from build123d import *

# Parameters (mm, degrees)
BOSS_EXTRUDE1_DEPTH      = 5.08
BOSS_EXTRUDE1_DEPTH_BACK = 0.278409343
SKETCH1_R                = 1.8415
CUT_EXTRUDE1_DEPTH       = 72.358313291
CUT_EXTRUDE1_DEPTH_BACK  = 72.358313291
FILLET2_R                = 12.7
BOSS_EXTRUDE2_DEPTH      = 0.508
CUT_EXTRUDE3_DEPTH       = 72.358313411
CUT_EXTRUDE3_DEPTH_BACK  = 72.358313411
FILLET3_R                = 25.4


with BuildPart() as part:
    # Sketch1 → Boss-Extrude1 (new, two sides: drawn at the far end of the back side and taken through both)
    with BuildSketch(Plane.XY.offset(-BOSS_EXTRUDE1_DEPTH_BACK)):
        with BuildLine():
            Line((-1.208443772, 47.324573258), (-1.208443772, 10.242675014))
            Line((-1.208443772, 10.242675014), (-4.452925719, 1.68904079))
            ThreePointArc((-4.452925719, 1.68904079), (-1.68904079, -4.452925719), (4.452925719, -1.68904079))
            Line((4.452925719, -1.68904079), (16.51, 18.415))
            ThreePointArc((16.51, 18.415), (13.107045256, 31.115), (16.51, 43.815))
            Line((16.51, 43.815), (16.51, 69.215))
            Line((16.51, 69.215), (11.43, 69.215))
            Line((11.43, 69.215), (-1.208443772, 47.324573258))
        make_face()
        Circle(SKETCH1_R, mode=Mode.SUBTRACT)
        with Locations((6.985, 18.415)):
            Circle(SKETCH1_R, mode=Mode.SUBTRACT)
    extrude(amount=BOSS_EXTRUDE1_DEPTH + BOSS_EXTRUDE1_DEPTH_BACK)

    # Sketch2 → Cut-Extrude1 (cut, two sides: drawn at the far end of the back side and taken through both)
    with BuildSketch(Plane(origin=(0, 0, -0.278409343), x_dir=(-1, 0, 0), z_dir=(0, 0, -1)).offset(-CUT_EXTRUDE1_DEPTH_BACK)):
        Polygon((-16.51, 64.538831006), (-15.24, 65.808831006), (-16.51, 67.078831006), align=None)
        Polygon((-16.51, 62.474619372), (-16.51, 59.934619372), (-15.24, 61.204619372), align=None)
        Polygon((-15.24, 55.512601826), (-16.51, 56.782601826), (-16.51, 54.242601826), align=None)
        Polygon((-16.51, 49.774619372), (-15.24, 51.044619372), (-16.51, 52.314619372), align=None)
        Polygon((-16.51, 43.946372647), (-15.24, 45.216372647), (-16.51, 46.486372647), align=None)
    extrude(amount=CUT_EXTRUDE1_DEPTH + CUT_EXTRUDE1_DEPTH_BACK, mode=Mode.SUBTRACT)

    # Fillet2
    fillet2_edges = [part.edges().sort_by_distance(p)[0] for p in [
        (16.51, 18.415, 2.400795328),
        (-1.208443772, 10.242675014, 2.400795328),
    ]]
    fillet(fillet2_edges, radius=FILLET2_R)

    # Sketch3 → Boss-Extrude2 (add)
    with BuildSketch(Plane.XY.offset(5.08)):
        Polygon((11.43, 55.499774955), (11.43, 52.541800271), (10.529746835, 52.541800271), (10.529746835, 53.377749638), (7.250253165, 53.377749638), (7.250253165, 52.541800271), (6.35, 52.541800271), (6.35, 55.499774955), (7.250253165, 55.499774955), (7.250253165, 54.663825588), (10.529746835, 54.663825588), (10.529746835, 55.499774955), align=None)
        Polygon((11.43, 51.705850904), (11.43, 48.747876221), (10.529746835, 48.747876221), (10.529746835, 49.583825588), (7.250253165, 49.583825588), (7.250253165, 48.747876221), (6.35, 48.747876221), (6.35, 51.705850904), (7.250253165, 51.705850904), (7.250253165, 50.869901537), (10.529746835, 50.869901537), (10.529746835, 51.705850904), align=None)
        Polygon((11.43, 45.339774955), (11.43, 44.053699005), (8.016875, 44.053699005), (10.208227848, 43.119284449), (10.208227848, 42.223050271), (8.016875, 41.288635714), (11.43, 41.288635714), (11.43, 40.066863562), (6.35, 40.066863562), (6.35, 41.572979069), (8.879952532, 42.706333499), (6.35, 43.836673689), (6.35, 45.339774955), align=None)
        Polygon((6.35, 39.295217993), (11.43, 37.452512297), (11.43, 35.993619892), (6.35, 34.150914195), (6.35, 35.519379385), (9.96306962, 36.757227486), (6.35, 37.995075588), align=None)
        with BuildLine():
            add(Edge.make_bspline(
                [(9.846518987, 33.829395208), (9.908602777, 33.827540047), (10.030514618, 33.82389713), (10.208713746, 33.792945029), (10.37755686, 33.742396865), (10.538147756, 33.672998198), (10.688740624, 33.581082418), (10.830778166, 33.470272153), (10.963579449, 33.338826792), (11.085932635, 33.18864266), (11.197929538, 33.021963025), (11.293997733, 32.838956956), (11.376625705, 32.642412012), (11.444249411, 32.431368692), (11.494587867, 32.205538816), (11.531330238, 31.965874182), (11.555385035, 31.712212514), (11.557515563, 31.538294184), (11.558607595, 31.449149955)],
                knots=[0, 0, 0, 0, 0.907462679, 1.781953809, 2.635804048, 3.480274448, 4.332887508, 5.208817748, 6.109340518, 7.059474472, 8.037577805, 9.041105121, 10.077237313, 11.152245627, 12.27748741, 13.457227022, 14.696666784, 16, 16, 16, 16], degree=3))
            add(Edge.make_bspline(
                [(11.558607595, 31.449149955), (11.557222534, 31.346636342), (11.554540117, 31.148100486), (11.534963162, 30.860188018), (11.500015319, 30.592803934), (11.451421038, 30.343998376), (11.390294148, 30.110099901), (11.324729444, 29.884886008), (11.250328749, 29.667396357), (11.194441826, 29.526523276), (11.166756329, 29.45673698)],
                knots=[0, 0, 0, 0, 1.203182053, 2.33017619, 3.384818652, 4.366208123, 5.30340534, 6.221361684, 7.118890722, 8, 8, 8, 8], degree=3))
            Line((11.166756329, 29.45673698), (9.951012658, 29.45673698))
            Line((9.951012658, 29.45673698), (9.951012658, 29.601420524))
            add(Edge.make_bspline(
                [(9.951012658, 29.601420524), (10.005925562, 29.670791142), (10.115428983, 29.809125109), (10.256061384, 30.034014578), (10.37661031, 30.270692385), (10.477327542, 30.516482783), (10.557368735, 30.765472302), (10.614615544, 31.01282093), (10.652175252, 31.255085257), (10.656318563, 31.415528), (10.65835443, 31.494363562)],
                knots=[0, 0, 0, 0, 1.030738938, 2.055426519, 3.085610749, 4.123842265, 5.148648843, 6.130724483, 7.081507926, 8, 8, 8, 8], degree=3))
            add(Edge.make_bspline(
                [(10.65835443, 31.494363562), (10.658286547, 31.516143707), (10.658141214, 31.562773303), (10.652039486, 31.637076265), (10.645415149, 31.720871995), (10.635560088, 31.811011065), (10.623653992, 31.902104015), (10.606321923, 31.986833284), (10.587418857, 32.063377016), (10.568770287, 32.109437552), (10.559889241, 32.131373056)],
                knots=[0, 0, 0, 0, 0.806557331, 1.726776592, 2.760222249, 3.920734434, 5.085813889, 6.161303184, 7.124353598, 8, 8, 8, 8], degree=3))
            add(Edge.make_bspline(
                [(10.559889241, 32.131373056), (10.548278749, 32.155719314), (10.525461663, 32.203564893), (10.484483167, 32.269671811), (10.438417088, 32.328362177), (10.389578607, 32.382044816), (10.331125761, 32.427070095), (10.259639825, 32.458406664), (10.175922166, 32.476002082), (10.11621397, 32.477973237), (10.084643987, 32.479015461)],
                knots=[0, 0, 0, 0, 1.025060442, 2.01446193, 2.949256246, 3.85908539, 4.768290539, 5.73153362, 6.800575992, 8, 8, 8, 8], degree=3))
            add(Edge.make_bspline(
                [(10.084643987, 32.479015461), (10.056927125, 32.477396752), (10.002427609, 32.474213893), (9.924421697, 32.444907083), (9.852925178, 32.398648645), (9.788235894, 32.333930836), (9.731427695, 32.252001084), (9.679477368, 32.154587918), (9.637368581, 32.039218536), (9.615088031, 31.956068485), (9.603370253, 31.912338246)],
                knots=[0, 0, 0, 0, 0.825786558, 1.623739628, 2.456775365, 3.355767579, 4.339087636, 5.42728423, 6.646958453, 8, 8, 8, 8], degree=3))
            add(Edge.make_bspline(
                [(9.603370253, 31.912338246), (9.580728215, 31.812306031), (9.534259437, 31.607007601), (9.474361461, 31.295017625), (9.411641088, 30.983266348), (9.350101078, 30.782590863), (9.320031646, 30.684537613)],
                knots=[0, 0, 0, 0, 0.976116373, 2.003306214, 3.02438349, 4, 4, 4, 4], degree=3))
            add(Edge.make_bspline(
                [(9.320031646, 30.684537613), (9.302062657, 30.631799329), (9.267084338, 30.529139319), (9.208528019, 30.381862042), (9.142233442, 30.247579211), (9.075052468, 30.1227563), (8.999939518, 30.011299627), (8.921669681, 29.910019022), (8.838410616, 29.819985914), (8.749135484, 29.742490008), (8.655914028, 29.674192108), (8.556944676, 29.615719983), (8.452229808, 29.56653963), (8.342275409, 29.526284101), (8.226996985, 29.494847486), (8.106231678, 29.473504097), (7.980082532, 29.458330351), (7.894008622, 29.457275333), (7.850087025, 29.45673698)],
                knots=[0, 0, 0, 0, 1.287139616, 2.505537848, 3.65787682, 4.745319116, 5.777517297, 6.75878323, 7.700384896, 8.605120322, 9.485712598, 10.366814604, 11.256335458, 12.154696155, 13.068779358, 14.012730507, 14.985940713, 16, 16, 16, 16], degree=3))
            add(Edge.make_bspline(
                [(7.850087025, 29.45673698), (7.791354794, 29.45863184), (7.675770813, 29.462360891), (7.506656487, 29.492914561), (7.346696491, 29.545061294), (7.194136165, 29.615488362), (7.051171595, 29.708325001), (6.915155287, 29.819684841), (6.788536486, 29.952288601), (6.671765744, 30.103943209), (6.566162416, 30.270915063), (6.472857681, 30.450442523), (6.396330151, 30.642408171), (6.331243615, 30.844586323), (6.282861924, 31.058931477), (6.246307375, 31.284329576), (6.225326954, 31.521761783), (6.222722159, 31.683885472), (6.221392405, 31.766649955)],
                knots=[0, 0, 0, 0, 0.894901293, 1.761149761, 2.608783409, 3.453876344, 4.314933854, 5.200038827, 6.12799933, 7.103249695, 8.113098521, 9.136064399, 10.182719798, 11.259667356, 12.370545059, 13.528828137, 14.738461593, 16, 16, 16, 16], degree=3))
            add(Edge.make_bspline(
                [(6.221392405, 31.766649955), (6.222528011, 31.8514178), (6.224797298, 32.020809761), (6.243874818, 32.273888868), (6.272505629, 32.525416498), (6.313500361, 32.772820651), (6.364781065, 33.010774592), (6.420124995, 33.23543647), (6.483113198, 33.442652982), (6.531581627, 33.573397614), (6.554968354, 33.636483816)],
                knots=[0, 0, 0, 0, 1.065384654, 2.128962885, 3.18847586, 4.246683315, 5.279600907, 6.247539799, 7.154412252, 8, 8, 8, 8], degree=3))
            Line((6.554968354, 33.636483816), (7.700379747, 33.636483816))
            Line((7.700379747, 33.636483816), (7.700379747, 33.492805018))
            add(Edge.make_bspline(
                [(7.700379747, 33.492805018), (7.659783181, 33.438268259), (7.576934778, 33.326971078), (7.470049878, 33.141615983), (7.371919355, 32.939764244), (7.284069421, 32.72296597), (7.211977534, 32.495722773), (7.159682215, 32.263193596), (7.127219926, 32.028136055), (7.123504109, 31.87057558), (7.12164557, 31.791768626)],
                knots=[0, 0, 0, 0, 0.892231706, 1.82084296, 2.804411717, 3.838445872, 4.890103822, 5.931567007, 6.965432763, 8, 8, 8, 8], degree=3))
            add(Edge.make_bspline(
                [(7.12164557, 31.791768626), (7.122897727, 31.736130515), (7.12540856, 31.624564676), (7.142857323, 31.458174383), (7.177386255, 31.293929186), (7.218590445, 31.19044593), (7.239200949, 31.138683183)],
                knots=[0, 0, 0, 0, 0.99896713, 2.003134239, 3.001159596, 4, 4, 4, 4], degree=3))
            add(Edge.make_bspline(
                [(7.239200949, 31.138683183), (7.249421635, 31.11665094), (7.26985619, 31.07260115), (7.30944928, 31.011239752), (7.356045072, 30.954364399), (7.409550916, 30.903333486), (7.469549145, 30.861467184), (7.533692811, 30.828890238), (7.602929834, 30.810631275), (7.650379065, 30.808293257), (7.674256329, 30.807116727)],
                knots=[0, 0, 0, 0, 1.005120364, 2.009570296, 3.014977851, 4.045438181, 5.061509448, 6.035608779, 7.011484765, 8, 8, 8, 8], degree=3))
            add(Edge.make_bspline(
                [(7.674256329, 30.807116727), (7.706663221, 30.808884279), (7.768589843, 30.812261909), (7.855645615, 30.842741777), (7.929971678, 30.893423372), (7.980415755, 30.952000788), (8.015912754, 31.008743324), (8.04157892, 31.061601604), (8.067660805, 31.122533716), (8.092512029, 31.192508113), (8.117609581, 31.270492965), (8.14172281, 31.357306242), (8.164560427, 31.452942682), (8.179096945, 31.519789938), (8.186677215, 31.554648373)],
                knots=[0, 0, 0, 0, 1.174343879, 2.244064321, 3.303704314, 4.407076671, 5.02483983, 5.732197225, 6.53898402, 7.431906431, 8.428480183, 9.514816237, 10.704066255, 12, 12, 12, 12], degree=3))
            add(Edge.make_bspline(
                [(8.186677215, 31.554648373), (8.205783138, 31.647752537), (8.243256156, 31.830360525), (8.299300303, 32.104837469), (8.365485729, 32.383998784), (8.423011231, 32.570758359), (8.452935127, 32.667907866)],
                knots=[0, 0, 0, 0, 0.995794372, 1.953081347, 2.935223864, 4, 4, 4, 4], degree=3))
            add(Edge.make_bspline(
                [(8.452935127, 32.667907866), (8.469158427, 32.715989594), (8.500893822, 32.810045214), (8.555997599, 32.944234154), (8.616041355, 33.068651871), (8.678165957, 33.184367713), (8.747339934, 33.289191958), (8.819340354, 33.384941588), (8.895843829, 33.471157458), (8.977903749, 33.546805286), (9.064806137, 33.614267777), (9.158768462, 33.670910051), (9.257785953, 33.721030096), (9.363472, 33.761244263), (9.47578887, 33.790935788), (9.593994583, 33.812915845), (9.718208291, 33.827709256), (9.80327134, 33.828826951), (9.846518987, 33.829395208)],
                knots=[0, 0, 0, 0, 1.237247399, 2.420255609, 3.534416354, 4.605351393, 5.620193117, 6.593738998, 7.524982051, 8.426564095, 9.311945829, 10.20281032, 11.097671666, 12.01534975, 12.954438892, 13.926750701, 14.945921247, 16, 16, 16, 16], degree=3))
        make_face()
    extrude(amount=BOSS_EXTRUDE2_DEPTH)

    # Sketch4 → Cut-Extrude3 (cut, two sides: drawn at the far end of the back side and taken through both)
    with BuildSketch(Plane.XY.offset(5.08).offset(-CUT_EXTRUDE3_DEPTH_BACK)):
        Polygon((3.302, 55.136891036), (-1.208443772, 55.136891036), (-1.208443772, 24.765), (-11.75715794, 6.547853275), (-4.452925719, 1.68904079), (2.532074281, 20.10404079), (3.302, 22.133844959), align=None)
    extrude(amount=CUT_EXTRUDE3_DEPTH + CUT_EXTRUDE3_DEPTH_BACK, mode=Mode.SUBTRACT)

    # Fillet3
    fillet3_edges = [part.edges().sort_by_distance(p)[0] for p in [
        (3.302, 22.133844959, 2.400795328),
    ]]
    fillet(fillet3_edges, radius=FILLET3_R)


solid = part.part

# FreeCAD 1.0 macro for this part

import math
import FreeCAD as App
import Part
import Sketcher
from FreeCAD import Vector
Q = App.Units.Quantity


def edges_at(feature, points):
    """Names of the edges that pass closest to the given points."""
    edges = feature.Shape.Edges
    near = lambda p: min(range(len(edges)), key=lambda i: edges[i].distToShape(Part.Vertex(*p))[0])
    return sorted({f"Edge{near(p) + 1}" for p in points})


def add_polygon(sketch, points):
    """Adds a closed chain of lines whose ends are joined by coincident constraints."""
    first, n = sketch.GeometryCount, len(points)
    for a, b in zip(points, points[1:] + points[:1]):
        sketch.addGeometry(Part.LineSegment(App.Vector(*a, 0), App.Vector(*b, 0)), False)
    for i in range(n):
        sketch.addConstraint(Sketcher.Constraint("Coincident", first + i, 2, first + (i + 1) % n, 1))

doc = App.newDocument("Part")
params = doc.addObject("Spreadsheet::Sheet", "Params")
for row, (alias, value) in enumerate([
    ("sketch1_radius", "1 in"),
    ("sketch1_height", "1 in"),
    ("sketch1_diameter", "0.145 in"),
    ("sketch1_width", "0.2 in"),
    ("sketch1_radius2", "0.1875 in"),
    ("pad1_length", "0.2 in"),
    ("pad1_length2", "0.278409 mm"),
    ("sketch2_height", "0.1 in"),
    ("fillet_radius", "0.5 in"),
    ("sketch3_width", "0.2 in"),
    ("pad2_length", "0.02 in"),
    ("fillet2_radius", "1 in"),
], start=1):
    params.set(f"A{row}", alias)
    params.set(f"B{row}", "=" + value)
    params.setAlias(f"B{row}", alias)

body = doc.addObject("PartDesign::Body", "Body")

sketch1 = body.newObject("Sketcher::SketchObject", "Sketch")
sketch1.AttachmentSupport = (doc.getObject("XY_Plane"), [""])
sketch1.MapMode = "FlatFace"
sketch1.addGeometry(Part.LineSegment(Vector(-1.2, 47.3, 0), Vector(-1.2, 10.2, 0)), False)
sketch1.addGeometry(Part.LineSegment(Vector(-1.2, 10.2, 0), Vector(-4.5, 1.7, 0)), False)
sketch1.addGeometry(Part.ArcOfCircle(Part.Circle(Vector(0, 0, 0), Vector(0, 0, 1), 4.8), math.radians(159), math.radians(339)), False)
sketch1.addGeometry(Part.LineSegment(Vector(4.5, -1.7, 0), Vector(16.5, 18.4, 0)), False)
sketch1.addGeometry(Part.ArcOfCircle(Part.Circle(Vector(38.5, 31.1, 0), Vector(0, 0, 1), 25.4), math.radians(150), math.radians(210)), False)
sketch1.addGeometry(Part.LineSegment(Vector(16.5, 43.8, 0), Vector(16.5, 69.2, 0)), False)
sketch1.addGeometry(Part.LineSegment(Vector(16.5, 69.2, 0), Vector(11.4, 69.2, 0)), False)
sketch1.addGeometry(Part.LineSegment(Vector(11.4, 69.2, 0), Vector(-1.2, 47.3, 0)), False)
sketch1.addGeometry(Part.Circle(Vector(0, 0, 0), Vector(0, 0, 1), 1.8), False)
sketch1.addGeometry(Part.Circle(Vector(7, 18.4, 0), Vector(0, 0, 1), 1.8), False)
sketch1.addConstraint(Sketcher.Constraint("Coincident", 0, 2, 1, 1))
sketch1.addConstraint(Sketcher.Constraint("Tangent", 1, 2, 2, 1))
sketch1.addConstraint(Sketcher.Constraint("Coincident", 2, 2, 3, 1))
sketch1.addConstraint(Sketcher.Constraint("Coincident", 3, 2, 4, 2))
sketch1.addConstraint(Sketcher.Constraint("Coincident", 4, 1, 5, 1))
sketch1.addConstraint(Sketcher.Constraint("Coincident", 5, 2, 6, 1))
sketch1.addConstraint(Sketcher.Constraint("Coincident", 6, 2, 7, 1))
sketch1.addConstraint(Sketcher.Constraint("Coincident", 7, 2, 0, 1))
sketch1.addConstraint(Sketcher.Constraint("Vertical", 0))
sketch1.addConstraint(Sketcher.Constraint("Vertical", 5))
sketch1.addConstraint(Sketcher.Constraint("Horizontal", 6))
sketch1.addConstraint(Sketcher.Constraint("Coincident", 2, 3, -1, 1))
sketch1.addConstraint(Sketcher.Constraint("Coincident", 8, 3, -1, 1))
sketch1.addConstraint(Sketcher.Constraint("Equal", 8, 9))
sketch1.addConstraint(Sketcher.Constraint("Horizontal", 9, 3, 3, 2))
sketch1.addConstraint(Sketcher.Constraint("Vertical", 3, 2, 4, 1))
sketch1.addConstraint(Sketcher.Constraint("Radius", 4, Q("1 in")))
sketch1.addConstraint(Sketcher.Constraint("DistanceY", 5, 1, 5, 2, Q("1 in")))
sketch1.addConstraint(Sketcher.Constraint("Diameter", 8, Q("0.145 in")))
sketch1.addConstraint(Sketcher.Constraint("DistanceX", 6, 2, 6, 1, Q("0.2 in")))
sketch1.addConstraint(Sketcher.Constraint("Angle", 7, Q("-120 deg")))
sketch1.addConstraint(Sketcher.Constraint("Radius", 2, Q("0.1875 in")))
sketch1.addConstraint(Sketcher.Constraint("DistanceY", 3, 2, 4, 1, Q("1 in")))
sketch1.addConstraint(Sketcher.Constraint("DistanceX", -1, 1, 3, 2, Q("0.65 in")))
sketch1.addConstraint(Sketcher.Constraint("DistanceY", -1, 1, 4, 3, Q("1.225 in")))
sketch1.addConstraint(Sketcher.Constraint("DistanceX", -1, 1, 9, 3, Q("0.275 in")))
sketch1.addConstraint(Sketcher.Constraint("DistanceY", 0, 2, 0, 1, Q("37.081898 mm")))
sketch1.addConstraint(Sketcher.Constraint("DistanceY", -1, 1, 1, 2, Q("1.689041 mm")))
sketch1.addConstraint(Sketcher.Constraint("DistanceY", 2, 2, -1, 1, Q("1.689041 mm")))
sketch1.setExpression("Constraints[16]", "Params.sketch1_radius")
sketch1.setExpression("Constraints[17]", "Params.sketch1_height")
sketch1.setExpression("Constraints[18]", "Params.sketch1_diameter")
sketch1.setExpression("Constraints[19]", "Params.sketch1_width")
sketch1.setExpression("Constraints[21]", "Params.sketch1_radius2")
pad1 = body.newObject("PartDesign::Pad", "Pad")
pad1.Profile = sketch1
pad1.Type = "TwoLengths"
pad1.setExpression("Length", "Params.pad1_length")
pad1.setExpression("Length2", "Params.pad1_length2")

sketch2 = body.newObject("Sketcher::SketchObject", "Sketch001")
sketch2.AttachmentSupport = (doc.getObject("XY_Plane"), [""])
sketch2.MapMode = "FlatFace"
sketch2.AttachmentOffset = App.Placement(Vector(0, 0, -0.278409), App.Rotation())
add_polygon(sketch2, [(16.5, 64.5), (15.2, 65.8), (16.5, 67.1)])
add_polygon(sketch2, [(16.5, 62.5), (16.5, 59.9), (15.2, 61.2)])
add_polygon(sketch2, [(15.2, 55.5), (16.5, 56.8), (16.5, 54.2)])
add_polygon(sketch2, [(16.5, 49.8), (15.2, 51), (16.5, 52.3)])
add_polygon(sketch2, [(16.5, 43.9), (15.2, 45.2), (16.5, 46.5)])
sketch2.addConstraint(Sketcher.Constraint("Vertical", 2))
sketch2.addConstraint(Sketcher.Constraint("Vertical", 3))
sketch2.addConstraint(Sketcher.Constraint("Vertical", 7))
sketch2.addConstraint(Sketcher.Constraint("Vertical", 11))
sketch2.addConstraint(Sketcher.Constraint("Vertical", 14))
sketch2.addConstraint(Sketcher.Constraint("Perpendicular", 0, 1))
sketch2.addConstraint(Sketcher.Constraint("Perpendicular", 1, 4))
sketch2.addConstraint(Sketcher.Constraint("Perpendicular", 4, 5))
sketch2.addConstraint(Sketcher.Constraint("Parallel", 5, 6))
sketch2.addConstraint(Sketcher.Constraint("Perpendicular", 6, 8))
sketch2.addConstraint(Sketcher.Constraint("Parallel", 8, 9))
sketch2.addConstraint(Sketcher.Constraint("Perpendicular", 9, 10))
sketch2.addConstraint(Sketcher.Constraint("Perpendicular", 10, 12))
sketch2.addConstraint(Sketcher.Constraint("Perpendicular", 12, 13))
sketch2.addConstraint(Sketcher.Constraint("Vertical", 2, 2, 3, 2))
sketch2.addConstraint(Sketcher.Constraint("Vertical", 0, 2, 4, 2))
sketch2.addConstraint(Sketcher.Constraint("Vertical", 5, 2, 6, 2))
sketch2.addConstraint(Sketcher.Constraint("Vertical", 4, 2, 8, 2))
sketch2.addConstraint(Sketcher.Constraint("Vertical", 8, 2, 9, 2))
sketch2.addConstraint(Sketcher.Constraint("Vertical", 7, 2, 10, 2))
sketch2.addConstraint(Sketcher.Constraint("Vertical", 9, 2, 12, 2))
sketch2.addConstraint(Sketcher.Constraint("Vertical", 11, 2, 13, 2))
sketch2.addConstraint(Sketcher.Constraint("Equal", 0, 1))
sketch2.addConstraint(Sketcher.Constraint("DistanceY", 2, 2, 2, 1, Q("0.1 in")))
sketch2.addConstraint(Sketcher.Constraint("DistanceX", -1, 1, 0, 2, Q("0.6 in")))
sketch2.addConstraint(Sketcher.Constraint("DistanceY", 9, 2, 4, 2, Q("0.4 in")))
sketch2.addConstraint(Sketcher.Constraint("DistanceY", -1, 1, 6, 2, Q("56.782602 mm")))
sketch2.addConstraint(Sketcher.Constraint("DistanceY", -1, 1, 0, 2, Q("65.808831 mm")))
sketch2.addConstraint(Sketcher.Constraint("DistanceY", -1, 1, 3, 2, Q("59.934619 mm")))
sketch2.addConstraint(Sketcher.Constraint("DistanceY", 12, 2, 7, 2, Q("9.026229 mm")))
sketch2.setExpression("Constraints[38]", "Params.sketch2_height")
pocket1 = body.newObject("PartDesign::Pocket", "Pocket")
pocket1.Profile = sketch2
pocket1.Type = "ThroughAll"
pocket1.Midplane = True
doc.recompute()

fillet = body.newObject("PartDesign::Fillet", "Fillet")
fillet.Base = (pocket1, edges_at(pocket1, [(16.51, 18.415, 2.401), (-1.208, 10.243, 2.401)]))
fillet.setExpression("Radius", "Params.fillet_radius")

sketch3 = body.newObject("Sketcher::SketchObject", "Sketch002")
sketch3.AttachmentSupport = (doc.getObject("XY_Plane"), [""])
sketch3.MapMode = "FlatFace"
sketch3.AttachmentOffset = App.Placement(Vector(0, 0, 0.2 * 25.4), App.Rotation())
add_polygon(sketch3, [(11.43, 52.5418), (11.43, 55.499775), (10.529747, 55.499775), (10.529747, 54.663826), (7.250253, 54.663826), (7.250253, 55.499775), (6.35, 55.499775), (6.35, 52.5418), (7.250253, 52.5418), (7.250253, 53.37775), (10.529747, 53.37775), (10.529747, 52.5418)])
add_polygon(sketch3, [(11.43, 48.747876), (11.43, 51.705851), (10.529747, 51.705851), (10.529747, 50.869902), (7.250253, 50.869902), (7.250253, 51.705851), (6.35, 51.705851), (6.35, 48.747876), (7.250253, 48.747876), (7.250253, 49.583826), (10.529747, 49.583826), (10.529747, 48.747876)])
add_polygon(sketch3, [(11.43, 44.053699), (11.43, 45.339775), (6.35, 45.339775), (6.35, 43.836674), (8.879953, 42.706333), (6.35, 41.572979), (6.35, 40.066864), (11.43, 40.066864), (11.43, 41.288636), (8.016875, 41.288636), (10.208228, 42.22305), (10.208228, 43.119284), (8.016875, 44.053699)])
add_polygon(sketch3, [(11.43, 37.452512), (6.35, 39.295218), (6.35, 37.995076), (9.96307, 36.757227), (6.35, 35.519379), (6.35, 34.150914), (11.43, 35.99362)])
sketch3.addGeometry(Part.BSplineCurve([Vector(9.846519, 33.829395, 0), Vector(9.908603, 33.82754, 0), Vector(10.030515, 33.823897, 0), Vector(10.208714, 33.792945, 0), Vector(10.377557, 33.742397, 0), Vector(10.538148, 33.672998, 0), Vector(10.688741, 33.581082, 0), Vector(10.830778, 33.470272, 0), Vector(10.963579, 33.338827, 0), Vector(11.085933, 33.188643, 0), Vector(11.19793, 33.021963, 0), Vector(11.293998, 32.838957, 0), Vector(11.376626, 32.642412, 0), Vector(11.444249, 32.431369, 0), Vector(11.494588, 32.205539, 0), Vector(11.53133, 31.965874, 0), Vector(11.555385, 31.712213, 0), Vector(11.557516, 31.538294, 0), Vector(11.558608, 31.44915, 0)], [4, 1, 1, 1, 1, 1, 1, 1, 1, 1, 1, 1, 1, 1, 1, 1, 4], [0, 0.907462679, 1.781953809, 2.635804048, 3.480274448, 4.332887508, 5.208817748, 6.109340518, 7.059474472, 8.037577805, 9.041105121, 10.077237313, 11.152245627, 12.27748741, 13.457227022, 14.696666784, 16], False, 3, [1, 1, 1, 1, 1, 1, 1, 1, 1, 1, 1, 1, 1, 1, 1, 1, 1, 1, 1], False), False)
sketch3.addGeometry(Part.BSplineCurve([Vector(8.452935, 32.667908, 0), Vector(8.469158, 32.71599, 0), Vector(8.500894, 32.810045, 0), Vector(8.555998, 32.944234, 0), Vector(8.616041, 33.068652, 0), Vector(8.678166, 33.184368, 0), Vector(8.74734, 33.289192, 0), Vector(8.81934, 33.384942, 0), Vector(8.895844, 33.471157, 0), Vector(8.977904, 33.546805, 0), Vector(9.064806, 33.614268, 0), Vector(9.158768, 33.67091, 0), Vector(9.257786, 33.72103, 0), Vector(9.363472, 33.761244, 0), Vector(9.475789, 33.790936, 0), Vector(9.593995, 33.812916, 0), Vector(9.718208, 33.827709, 0), Vector(9.803271, 33.828827, 0), Vector(9.846519, 33.829395, 0)], [4, 1, 1, 1, 1, 1, 1, 1, 1, 1, 1, 1, 1, 1, 1, 1, 4], [0, 1.237247399, 2.420255609, 3.534416354, 4.605351393, 5.620193117, 6.593738998, 7.524982051, 8.426564095, 9.311945829, 10.20281032, 11.097671666, 12.01534975, 12.954438892, 13.926750701, 14.945921247, 16], False, 3, [1, 1, 1, 1, 1, 1, 1, 1, 1, 1, 1, 1, 1, 1, 1, 1, 1, 1, 1], False), False)
sketch3.addGeometry(Part.BSplineCurve([Vector(8.186677, 31.554648, 0), Vector(8.205783, 31.647753, 0), Vector(8.243256, 31.830361, 0), Vector(8.2993, 32.104837, 0), Vector(8.365486, 32.383999, 0), Vector(8.423011, 32.570758, 0), Vector(8.452935, 32.667908, 0)], [4, 1, 1, 1, 4], [0, 0.995794372, 1.953081347, 2.935223864, 4], False, 3, [1, 1, 1, 1, 1, 1, 1], False), False)
sketch3.addGeometry(Part.BSplineCurve([Vector(7.674256, 30.807117, 0), Vector(7.706663, 30.808884, 0), Vector(7.76859, 30.812262, 0), Vector(7.855646, 30.842742, 0), Vector(7.929972, 30.893423, 0), Vector(7.980416, 30.952001, 0), Vector(8.015913, 31.008743, 0), Vector(8.041579, 31.061602, 0), Vector(8.067661, 31.122534, 0), Vector(8.092512, 31.192508, 0), Vector(8.11761, 31.270493, 0), Vector(8.141723, 31.357306, 0), Vector(8.16456, 31.452943, 0), Vector(8.179097, 31.51979, 0), Vector(8.186677, 31.554648, 0)], [4, 1, 1, 1, 1, 1, 1, 1, 1, 1, 1, 1, 4], [0, 1.174343879, 2.244064321, 3.303704314, 4.407076671, 5.02483983, 5.732197225, 6.53898402, 7.431906431, 8.428480183, 9.514816237, 10.704066255, 12], False, 3, [1, 1, 1, 1, 1, 1, 1, 1, 1, 1, 1, 1, 1, 1, 1], False), False)
sketch3.addGeometry(Part.BSplineCurve([Vector(7.239201, 31.138683, 0), Vector(7.249422, 31.116651, 0), Vector(7.269856, 31.072601, 0), Vector(7.309449, 31.01124, 0), Vector(7.356045, 30.954364, 0), Vector(7.409551, 30.903333, 0), Vector(7.469549, 30.861467, 0), Vector(7.533693, 30.82889, 0), Vector(7.60293, 30.810631, 0), Vector(7.650379, 30.808293, 0), Vector(7.674256, 30.807117, 0)], [4, 1, 1, 1, 1, 1, 1, 1, 4], [0, 1.005120364, 2.009570296, 3.014977851, 4.045438181, 5.061509448, 6.035608779, 7.011484765, 8], False, 3, [1, 1, 1, 1, 1, 1, 1, 1, 1, 1, 1], False), False)
sketch3.addGeometry(Part.BSplineCurve([Vector(7.121646, 31.791769, 0), Vector(7.122898, 31.736131, 0), Vector(7.125409, 31.624565, 0), Vector(7.142857, 31.458174, 0), Vector(7.177386, 31.293929, 0), Vector(7.21859, 31.190446, 0), Vector(7.239201, 31.138683, 0)], [4, 1, 1, 1, 4], [0, 0.99896713, 2.003134239, 3.001159596, 4], False, 3, [1, 1, 1, 1, 1, 1, 1], False), False)
sketch3.addGeometry(Part.BSplineCurve([Vector(7.70038, 33.492805, 0), Vector(7.659783, 33.438268, 0), Vector(7.576935, 33.326971, 0), Vector(7.47005, 33.141616, 0), Vector(7.371919, 32.939764, 0), Vector(7.284069, 32.722966, 0), Vector(7.211978, 32.495723, 0), Vector(7.159682, 32.263194, 0), Vector(7.12722, 32.028136, 0), Vector(7.123504, 31.870576, 0), Vector(7.121646, 31.791769, 0)], [4, 1, 1, 1, 1, 1, 1, 1, 4], [0, 0.892231706, 1.82084296, 2.804411717, 3.838445872, 4.890103822, 5.931567007, 6.965432763, 8], False, 3, [1, 1, 1, 1, 1, 1, 1, 1, 1, 1, 1], False), False)
sketch3.addGeometry(Part.LineSegment(Vector(7.70038, 33.492805, 0), Vector(7.70038, 33.636484, 0)), False)
sketch3.addGeometry(Part.LineSegment(Vector(7.70038, 33.636484, 0), Vector(6.554968, 33.636484, 0)), False)
sketch3.addGeometry(Part.BSplineCurve([Vector(6.221392, 31.76665, 0), Vector(6.222528, 31.851418, 0), Vector(6.224797, 32.02081, 0), Vector(6.243875, 32.273889, 0), Vector(6.272506, 32.525416, 0), Vector(6.3135, 32.772821, 0), Vector(6.364781, 33.010775, 0), Vector(6.420125, 33.235436, 0), Vector(6.483113, 33.442653, 0), Vector(6.531582, 33.573398, 0), Vector(6.554968, 33.636484, 0)], [4, 1, 1, 1, 1, 1, 1, 1, 4], [0, 1.065384654, 2.128962885, 3.18847586, 4.246683315, 5.279600907, 6.247539799, 7.154412252, 8], False, 3, [1, 1, 1, 1, 1, 1, 1, 1, 1, 1, 1], False), False)
sketch3.addGeometry(Part.BSplineCurve([Vector(7.850087, 29.456737, 0), Vector(7.791355, 29.458632, 0), Vector(7.675771, 29.462361, 0), Vector(7.506656, 29.492915, 0), Vector(7.346696, 29.545061, 0), Vector(7.194136, 29.615488, 0), Vector(7.051172, 29.708325, 0), Vector(6.915155, 29.819685, 0), Vector(6.788536, 29.952289, 0), Vector(6.671766, 30.103943, 0), Vector(6.566162, 30.270915, 0), Vector(6.472858, 30.450443, 0), Vector(6.39633, 30.642408, 0), Vector(6.331244, 30.844586, 0), Vector(6.282862, 31.058931, 0), Vector(6.246307, 31.28433, 0), Vector(6.225327, 31.521762, 0), Vector(6.222722, 31.683885, 0), Vector(6.221392, 31.76665, 0)], [4, 1, 1, 1, 1, 1, 1, 1, 1, 1, 1, 1, 1, 1, 1, 1, 4], [0, 0.894901293, 1.761149761, 2.608783409, 3.453876344, 4.314933854, 5.200038827, 6.12799933, 7.103249695, 8.113098521, 9.136064399, 10.182719798, 11.259667356, 12.370545059, 13.528828137, 14.738461593, 16], False, 3, [1, 1, 1, 1, 1, 1, 1, 1, 1, 1, 1, 1, 1, 1, 1, 1, 1, 1, 1], False), False)
sketch3.addGeometry(Part.BSplineCurve([Vector(9.320032, 30.684538, 0), Vector(9.302063, 30.631799, 0), Vector(9.267084, 30.529139, 0), Vector(9.208528, 30.381862, 0), Vector(9.142233, 30.247579, 0), Vector(9.075052, 30.122756, 0), Vector(8.99994, 30.0113, 0), Vector(8.92167, 29.910019, 0), Vector(8.838411, 29.819986, 0), Vector(8.749135, 29.74249, 0), Vector(8.655914, 29.674192, 0), Vector(8.556945, 29.61572, 0), Vector(8.45223, 29.56654, 0), Vector(8.342275, 29.526284, 0), Vector(8.226997, 29.494847, 0), Vector(8.106232, 29.473504, 0), Vector(7.980083, 29.45833, 0), Vector(7.894009, 29.457275, 0), Vector(7.850087, 29.456737, 0)], [4, 1, 1, 1, 1, 1, 1, 1, 1, 1, 1, 1, 1, 1, 1, 1, 4], [0, 1.287139616, 2.505537848, 3.65787682, 4.745319116, 5.777517297, 6.75878323, 7.700384896, 8.605120322, 9.485712598, 10.366814604, 11.256335458, 12.154696155, 13.068779358, 14.012730507, 14.985940713, 16], False, 3, [1, 1, 1, 1, 1, 1, 1, 1, 1, 1, 1, 1, 1, 1, 1, 1, 1, 1, 1], False), False)
sketch3.addGeometry(Part.BSplineCurve([Vector(9.60337, 31.912338, 0), Vector(9.580728, 31.812306, 0), Vector(9.534259, 31.607008, 0), Vector(9.474361, 31.295018, 0), Vector(9.411641, 30.983266, 0), Vector(9.350101, 30.782591, 0), Vector(9.320032, 30.684538, 0)], [4, 1, 1, 1, 4], [0, 0.976116373, 2.003306214, 3.02438349, 4], False, 3, [1, 1, 1, 1, 1, 1, 1], False), False)
sketch3.addGeometry(Part.BSplineCurve([Vector(10.084644, 32.479015, 0), Vector(10.056927, 32.477397, 0), Vector(10.002428, 32.474214, 0), Vector(9.924422, 32.444907, 0), Vector(9.852925, 32.398649, 0), Vector(9.788236, 32.333931, 0), Vector(9.731428, 32.252001, 0), Vector(9.679477, 32.154588, 0), Vector(9.637369, 32.039219, 0), Vector(9.615088, 31.956068, 0), Vector(9.60337, 31.912338, 0)], [4, 1, 1, 1, 1, 1, 1, 1, 4], [0, 0.825786558, 1.623739628, 2.456775365, 3.355767579, 4.339087636, 5.42728423, 6.646958453, 8], False, 3, [1, 1, 1, 1, 1, 1, 1, 1, 1, 1, 1], False), False)
sketch3.addGeometry(Part.BSplineCurve([Vector(10.559889, 32.131373, 0), Vector(10.548279, 32.155719, 0), Vector(10.525462, 32.203565, 0), Vector(10.484483, 32.269672, 0), Vector(10.438417, 32.328362, 0), Vector(10.389579, 32.382045, 0), Vector(10.331126, 32.42707, 0), Vector(10.25964, 32.458407, 0), Vector(10.175922, 32.476002, 0), Vector(10.116214, 32.477973, 0), Vector(10.084644, 32.479015, 0)], [4, 1, 1, 1, 1, 1, 1, 1, 4], [0, 1.025060442, 2.01446193, 2.949256246, 3.85908539, 4.768290539, 5.73153362, 6.800575992, 8], False, 3, [1, 1, 1, 1, 1, 1, 1, 1, 1, 1, 1], False), False)
sketch3.addGeometry(Part.BSplineCurve([Vector(10.658354, 31.494364, 0), Vector(10.658287, 31.516144, 0), Vector(10.658141, 31.562773, 0), Vector(10.652039, 31.637076, 0), Vector(10.645415, 31.720872, 0), Vector(10.63556, 31.811011, 0), Vector(10.623654, 31.902104, 0), Vector(10.606322, 31.986833, 0), Vector(10.587419, 32.063377, 0), Vector(10.56877, 32.109438, 0), Vector(10.559889, 32.131373, 0)], [4, 1, 1, 1, 1, 1, 1, 1, 4], [0, 0.806557331, 1.726776592, 2.760222249, 3.920734434, 5.085813889, 6.161303184, 7.124353598, 8], False, 3, [1, 1, 1, 1, 1, 1, 1, 1, 1, 1, 1], False), False)
sketch3.addGeometry(Part.BSplineCurve([Vector(9.951013, 29.601421, 0), Vector(10.005926, 29.670791, 0), Vector(10.115429, 29.809125, 0), Vector(10.256061, 30.034015, 0), Vector(10.37661, 30.270692, 0), Vector(10.477328, 30.516483, 0), Vector(10.557369, 30.765472, 0), Vector(10.614616, 31.012821, 0), Vector(10.652175, 31.255085, 0), Vector(10.656319, 31.415528, 0), Vector(10.658354, 31.494364, 0)], [4, 1, 1, 1, 1, 1, 1, 1, 4], [0, 1.030738938, 2.055426519, 3.085610749, 4.123842265, 5.148648843, 6.130724483, 7.081507926, 8], False, 3, [1, 1, 1, 1, 1, 1, 1, 1, 1, 1, 1], False), False)
sketch3.addGeometry(Part.LineSegment(Vector(9.951013, 29.601421, 0), Vector(9.951013, 29.456737, 0)), False)
sketch3.addGeometry(Part.LineSegment(Vector(9.951013, 29.456737, 0), Vector(11.166756, 29.456737, 0)), False)
sketch3.addGeometry(Part.BSplineCurve([Vector(11.558608, 31.44915, 0), Vector(11.557223, 31.346636, 0), Vector(11.55454, 31.1481, 0), Vector(11.534963, 30.860188, 0), Vector(11.500015, 30.592804, 0), Vector(11.451421, 30.343998, 0), Vector(11.390294, 30.1101, 0), Vector(11.324729, 29.884886, 0), Vector(11.250329, 29.667396, 0), Vector(11.194442, 29.526523, 0), Vector(11.166756, 29.456737, 0)], [4, 1, 1, 1, 1, 1, 1, 1, 4], [0, 1.203182053, 2.33017619, 3.384818652, 4.366208123, 5.30340534, 6.221361684, 7.118890722, 8], False, 3, [1, 1, 1, 1, 1, 1, 1, 1, 1, 1, 1], False), False)
sketch3.addConstraint(Sketcher.Constraint("Block", 44))
sketch3.addConstraint(Sketcher.Constraint("Block", 45))
sketch3.addConstraint(Sketcher.Constraint("Block", 46))
sketch3.addConstraint(Sketcher.Constraint("Block", 47))
sketch3.addConstraint(Sketcher.Constraint("Block", 48))
sketch3.addConstraint(Sketcher.Constraint("Block", 49))
sketch3.addConstraint(Sketcher.Constraint("Block", 50))
sketch3.addConstraint(Sketcher.Constraint("Block", 53))
sketch3.addConstraint(Sketcher.Constraint("Block", 54))
sketch3.addConstraint(Sketcher.Constraint("Block", 55))
sketch3.addConstraint(Sketcher.Constraint("Block", 56))
sketch3.addConstraint(Sketcher.Constraint("Block", 57))
sketch3.addConstraint(Sketcher.Constraint("Block", 58))
sketch3.addConstraint(Sketcher.Constraint("Block", 59))
sketch3.addConstraint(Sketcher.Constraint("Block", 60))
sketch3.addConstraint(Sketcher.Constraint("Block", 63))
sketch3.addConstraint(Sketcher.Constraint("Coincident", 50, 1, 51, 1))
sketch3.addConstraint(Sketcher.Constraint("Coincident", 51, 2, 52, 1))
sketch3.addConstraint(Sketcher.Constraint("Coincident", 52, 2, 53, 2))
sketch3.addConstraint(Sketcher.Constraint("Coincident", 60, 1, 61, 1))
sketch3.addConstraint(Sketcher.Constraint("Coincident", 61, 2, 62, 1))
sketch3.addConstraint(Sketcher.Constraint("Coincident", 62, 2, 63, 2))
sketch3.addConstraint(Sketcher.Constraint("Vertical", 0))
sketch3.addConstraint(Sketcher.Constraint("Horizontal", 1))
sketch3.addConstraint(Sketcher.Constraint("Vertical", 2))
sketch3.addConstraint(Sketcher.Constraint("Horizontal", 3))
sketch3.addConstraint(Sketcher.Constraint("Vertical", 4))
sketch3.addConstraint(Sketcher.Constraint("Horizontal", 5))
sketch3.addConstraint(Sketcher.Constraint("Vertical", 6))
sketch3.addConstraint(Sketcher.Constraint("Horizontal", 7))
sketch3.addConstraint(Sketcher.Constraint("Vertical", 8))
sketch3.addConstraint(Sketcher.Constraint("Horizontal", 9))
sketch3.addConstraint(Sketcher.Constraint("Vertical", 10))
sketch3.addConstraint(Sketcher.Constraint("Horizontal", 11))
sketch3.addConstraint(Sketcher.Constraint("Vertical", 12))
sketch3.addConstraint(Sketcher.Constraint("Horizontal", 13))
sketch3.addConstraint(Sketcher.Constraint("Vertical", 14))
sketch3.addConstraint(Sketcher.Constraint("Horizontal", 15))
sketch3.addConstraint(Sketcher.Constraint("Vertical", 16))
sketch3.addConstraint(Sketcher.Constraint("Horizontal", 17))
sketch3.addConstraint(Sketcher.Constraint("Vertical", 18))
sketch3.addConstraint(Sketcher.Constraint("Horizontal", 19))
sketch3.addConstraint(Sketcher.Constraint("Vertical", 20))
sketch3.addConstraint(Sketcher.Constraint("Horizontal", 21))
sketch3.addConstraint(Sketcher.Constraint("Vertical", 22))
sketch3.addConstraint(Sketcher.Constraint("Horizontal", 23))
sketch3.addConstraint(Sketcher.Constraint("Vertical", 24))
sketch3.addConstraint(Sketcher.Constraint("Horizontal", 25))
sketch3.addConstraint(Sketcher.Constraint("Vertical", 26))
sketch3.addConstraint(Sketcher.Constraint("Vertical", 29))
sketch3.addConstraint(Sketcher.Constraint("Horizontal", 30))
sketch3.addConstraint(Sketcher.Constraint("Vertical", 31))
sketch3.addConstraint(Sketcher.Constraint("Horizontal", 32))
sketch3.addConstraint(Sketcher.Constraint("Vertical", 34))
sketch3.addConstraint(Sketcher.Constraint("Horizontal", 36))
sketch3.addConstraint(Sketcher.Constraint("Vertical", 38))
sketch3.addConstraint(Sketcher.Constraint("Vertical", 41))
sketch3.addConstraint(Sketcher.Constraint("Vertical", 43))
sketch3.addConstraint(Sketcher.Constraint("Vertical", 51))
sketch3.addConstraint(Sketcher.Constraint("Horizontal", 52))
sketch3.addConstraint(Sketcher.Constraint("Vertical", 61))
sketch3.addConstraint(Sketcher.Constraint("Horizontal", 62))
sketch3.addConstraint(Sketcher.Constraint("Horizontal", 1, 2, 4, 2))
sketch3.addConstraint(Sketcher.Constraint("Horizontal", 7, 2, 10, 2))
sketch3.addConstraint(Sketcher.Constraint("Horizontal", 13, 2, 16, 2))
sketch3.addConstraint(Sketcher.Constraint("Horizontal", 19, 2, 22, 2))
sketch3.addConstraint(Sketcher.Constraint("Vertical", 4, 2, 7, 2))
sketch3.addConstraint(Sketcher.Constraint("Vertical", 2, 2, 9, 2))
sketch3.addConstraint(Sketcher.Constraint("Vertical", 11, 2, 12, 2))
sketch3.addConstraint(Sketcher.Constraint("Vertical", 10, 2, 13, 2))
sketch3.addConstraint(Sketcher.Constraint("Vertical", 8, 2, 15, 2))
sketch3.addConstraint(Sketcher.Constraint("Vertical", 6, 2, 17, 2))
sketch3.addConstraint(Sketcher.Constraint("Vertical", 16, 2, 19, 2))
sketch3.addConstraint(Sketcher.Constraint("Vertical", 14, 2, 21, 2))
sketch3.addConstraint(Sketcher.Constraint("Vertical", 23, 2, 24, 2))
sketch3.addConstraint(Sketcher.Constraint("Vertical", 18, 2, 25, 2))
sketch3.addConstraint(Sketcher.Constraint("Vertical", 26, 2, 28, 2))
sketch3.addConstraint(Sketcher.Constraint("Vertical", 24, 2, 30, 2))
sketch3.addConstraint(Sketcher.Constraint("Vertical", 32, 2, 35, 2))
sketch3.addConstraint(Sketcher.Constraint("Vertical", 29, 2, 37, 2))
sketch3.addConstraint(Sketcher.Constraint("Vertical", 38, 2, 40, 2))
sketch3.addConstraint(Sketcher.Constraint("Vertical", 36, 2, 42, 2))
sketch3.addConstraint(Sketcher.Constraint("Equal", 1, 5))
sketch3.addConstraint(Sketcher.Constraint("Equal", 4, 8))
sketch3.addConstraint(Sketcher.Constraint("Equal", 6, 12))
sketch3.addConstraint(Sketcher.Constraint("Equal", 10, 14))
sketch3.addConstraint(Sketcher.Constraint("Equal", 16, 20))
sketch3.addConstraint(Sketcher.Constraint("Equal", 33, 35))
sketch3.addConstraint(Sketcher.Constraint("Equal", 39, 40))
sketch3.addConstraint(Sketcher.Constraint("Equal", 37, 42))
sketch3.addConstraint(Sketcher.Constraint("DistanceX", 25, 2, 25, 1, Q("0.2 in")))
sketch3.addConstraint(Sketcher.Constraint("DistanceX", -1, 1, 0, 2, Q("0.45 in")))
sketch3.addConstraint(Sketcher.Constraint("DistanceY", 26, 2, 26, 1, Q("1.503101 mm")))
sketch3.addConstraint(Sketcher.Constraint("DistanceY", 2, 2, 2, 1, Q("0.835949 mm")))
sketch3.addConstraint(Sketcher.Constraint("DistanceY", -1, 1, 6, 2, Q("52.5418 mm")))
sketch3.addConstraint(Sketcher.Constraint("DistanceY", -1, 1, 14, 2, Q("50.869902 mm")))
sketch3.addConstraint(Sketcher.Constraint("DistanceY", -1, 1, 35, 2, Q("44.053699 mm")))
sketch3.addConstraint(Sketcher.Constraint("DistanceY", 24, 2, 23, 2, Q("3.408101 mm")))
sketch3.addConstraint(Sketcher.Constraint("DistanceX", 19, 2, 27, 2, Q("1.629699 mm")))
sketch3.addConstraint(Sketcher.Constraint("DistanceX", 52, 2, 39, 2, Q("3.408101 mm")))
sketch3.addConstraint(Sketcher.Constraint("Distance", 27, Q("2.77098 mm")))
sketch3.addConstraint(Sketcher.Constraint("Distance", 28, Q("2.772211 mm")))
sketch3.addConstraint(Sketcher.Constraint("Distance", 33, Q("2.382259 mm")))
sketch3.addConstraint(Sketcher.Constraint("DistanceX", 1, 2, 1, 1, Q("0.900253 mm")))
sketch3.addConstraint(Sketcher.Constraint("DistanceX", 32, 2, 32, 1, Q("3.413125 mm")))
sketch3.addConstraint(Sketcher.Constraint("DistanceY", 0, 1, 0, 2, Q("2.957975 mm")))
sketch3.addConstraint(Sketcher.Constraint("DistanceY", 29, 2, 29, 1, Q("1.506116 mm")))
sketch3.addConstraint(Sketcher.Constraint("DistanceY", 31, 1, 31, 2, Q("1.221772 mm")))
sketch3.addConstraint(Sketcher.Constraint("DistanceY", 34, 1, 34, 2, Q("0.896234 mm")))
sketch3.addConstraint(Sketcher.Constraint("DistanceY", 38, 2, 38, 1, Q("1.300142 mm")))
sketch3.addConstraint(Sketcher.Constraint("DistanceY", 41, 2, 41, 1, Q("1.368465 mm")))
sketch3.addConstraint(Sketcher.Constraint("DistanceY", 43, 1, 43, 2, Q("1.458892 mm")))
sketch3.addConstraint(Sketcher.Constraint("DistanceY", -1, 1, 40, 2, Q("35.519379 mm")))
sketch3.addConstraint(Sketcher.Constraint("DistanceY", -1, 1, 42, 2, Q("35.99362 mm")))
sketch3.setExpression("Constraints[134]", "Params.sketch3_width")
pad2 = body.newObject("PartDesign::Pad", "Pad001")
pad2.Profile = sketch3
pad2.setExpression("Length", "Params.pad2_length")

sketch4 = body.newObject("Sketcher::SketchObject", "Sketch003")
sketch4.AttachmentSupport = (doc.getObject("XY_Plane"), [""])
sketch4.MapMode = "FlatFace"
sketch4.AttachmentOffset = App.Placement(Vector(0, 0, 0.2 * 25.4), App.Rotation())
add_polygon(sketch4, [(3.3, 55.1), (-1.2, 55.1), (-1.2, 24.8), (-11.8, 6.5), (-4.5, 1.7), (2.5, 20.1), (3.3, 22.1)])
sketch4.addConstraint(Sketcher.Constraint("Horizontal", 0))
sketch4.addConstraint(Sketcher.Constraint("Vertical", 1))
sketch4.addConstraint(Sketcher.Constraint("Vertical", 6))
sketch4.addConstraint(Sketcher.Constraint("Parallel", 4, 5))
sketch4.addConstraint(Sketcher.Constraint("DistanceX", -1, 1, 5, 2, Q("0.13 in")))
sketch4.addConstraint(Sketcher.Constraint("DistanceY", -1, 1, 1, 2, Q("0.975 in")))
sketch4.addConstraint(Sketcher.Constraint("DistanceX", 3, 2, 4, 2, Q("0.275 in")))
sketch4.addConstraint(Sketcher.Constraint("DistanceY", 3, 2, 4, 2, Q("0.725 in")))
sketch4.addConstraint(Sketcher.Constraint("DistanceY", 1, 2, 1, 1, Q("30.371891 mm")))
sketch4.addConstraint(Sketcher.Constraint("Distance", 5, Q("2.170919 mm")))
sketch4.addConstraint(Sketcher.Constraint("DistanceX", 0, 2, 0, 1, Q("4.510444 mm")))
sketch4.addConstraint(Sketcher.Constraint("DistanceY", 6, 1, 6, 2, Q("33.003046 mm")))
sketch4.addConstraint(Sketcher.Constraint("DistanceY", 2, 2, 5, 2, Q("15.585992 mm")))
sketch4.addConstraint(Sketcher.Constraint("Distance", 2, Q("21.050886 mm")))
pocket2 = body.newObject("PartDesign::Pocket", "Pocket001")
pocket2.Profile = sketch4
pocket2.Type = "ThroughAll"
pocket2.Midplane = True
doc.recompute()

fillet2 = body.newObject("PartDesign::Fillet", "Fillet001")
fillet2.Base = (pocket2, edges_at(pocket2, [(3.302, 22.134, 2.401)]))
fillet2.setExpression("Radius", "Params.fillet2_radius")

doc.recompute()
